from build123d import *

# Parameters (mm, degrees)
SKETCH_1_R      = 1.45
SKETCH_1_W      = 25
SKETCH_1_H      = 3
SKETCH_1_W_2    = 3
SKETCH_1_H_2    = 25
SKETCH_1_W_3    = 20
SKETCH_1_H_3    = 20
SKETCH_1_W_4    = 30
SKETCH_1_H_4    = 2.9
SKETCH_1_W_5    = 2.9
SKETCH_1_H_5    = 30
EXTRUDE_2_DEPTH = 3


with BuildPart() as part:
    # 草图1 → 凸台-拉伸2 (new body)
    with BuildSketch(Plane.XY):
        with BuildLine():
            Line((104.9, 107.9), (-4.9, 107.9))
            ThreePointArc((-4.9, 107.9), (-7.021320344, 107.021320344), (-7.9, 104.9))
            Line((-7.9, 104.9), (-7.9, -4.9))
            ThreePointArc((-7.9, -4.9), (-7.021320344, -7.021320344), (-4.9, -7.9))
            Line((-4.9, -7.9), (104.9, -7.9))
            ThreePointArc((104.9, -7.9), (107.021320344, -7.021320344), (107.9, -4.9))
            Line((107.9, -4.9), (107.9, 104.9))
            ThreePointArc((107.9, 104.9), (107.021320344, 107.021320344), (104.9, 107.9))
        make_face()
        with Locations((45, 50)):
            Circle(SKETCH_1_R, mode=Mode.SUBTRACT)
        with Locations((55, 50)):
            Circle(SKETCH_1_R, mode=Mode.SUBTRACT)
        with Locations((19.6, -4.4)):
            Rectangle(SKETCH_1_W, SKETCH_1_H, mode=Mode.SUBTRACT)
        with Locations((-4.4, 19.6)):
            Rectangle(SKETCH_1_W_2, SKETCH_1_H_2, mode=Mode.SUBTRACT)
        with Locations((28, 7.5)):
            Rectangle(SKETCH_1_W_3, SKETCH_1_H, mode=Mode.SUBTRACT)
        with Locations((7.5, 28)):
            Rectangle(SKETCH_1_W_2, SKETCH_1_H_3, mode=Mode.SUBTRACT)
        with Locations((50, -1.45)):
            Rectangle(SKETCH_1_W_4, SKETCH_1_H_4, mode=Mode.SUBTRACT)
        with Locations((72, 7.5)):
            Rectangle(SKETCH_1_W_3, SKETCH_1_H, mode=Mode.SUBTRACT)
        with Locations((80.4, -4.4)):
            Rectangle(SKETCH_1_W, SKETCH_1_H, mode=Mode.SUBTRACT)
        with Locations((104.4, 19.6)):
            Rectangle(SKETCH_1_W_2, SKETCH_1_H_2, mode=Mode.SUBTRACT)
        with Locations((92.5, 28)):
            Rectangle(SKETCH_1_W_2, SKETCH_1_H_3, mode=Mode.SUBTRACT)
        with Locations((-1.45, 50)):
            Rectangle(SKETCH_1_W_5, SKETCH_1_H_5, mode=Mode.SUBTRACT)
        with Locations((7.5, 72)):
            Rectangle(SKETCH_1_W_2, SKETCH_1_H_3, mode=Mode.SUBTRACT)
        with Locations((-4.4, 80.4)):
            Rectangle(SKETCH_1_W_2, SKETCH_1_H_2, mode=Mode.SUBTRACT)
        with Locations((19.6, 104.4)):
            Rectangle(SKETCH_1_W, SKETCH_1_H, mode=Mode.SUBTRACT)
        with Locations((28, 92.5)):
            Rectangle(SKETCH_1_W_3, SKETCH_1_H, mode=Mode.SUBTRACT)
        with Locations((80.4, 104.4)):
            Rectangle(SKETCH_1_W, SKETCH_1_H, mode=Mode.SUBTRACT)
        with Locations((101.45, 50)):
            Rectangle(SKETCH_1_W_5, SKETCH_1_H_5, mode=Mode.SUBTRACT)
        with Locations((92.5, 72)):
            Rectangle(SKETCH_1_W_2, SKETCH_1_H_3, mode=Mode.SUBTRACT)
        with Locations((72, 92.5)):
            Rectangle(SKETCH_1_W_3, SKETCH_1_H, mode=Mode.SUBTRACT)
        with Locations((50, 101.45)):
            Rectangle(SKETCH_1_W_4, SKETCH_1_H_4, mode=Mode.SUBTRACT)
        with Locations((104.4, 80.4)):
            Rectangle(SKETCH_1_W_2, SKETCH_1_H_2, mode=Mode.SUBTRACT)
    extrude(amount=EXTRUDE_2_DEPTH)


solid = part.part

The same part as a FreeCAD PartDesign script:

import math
import FreeCAD as App
import Part
import Sketcher
Q = App.Units.Quantity


def add_polygon(sketch, points):
    """Adds a closed chain of lines whose ends are joined by coincident constraints."""
    first, n = sketch.GeometryCount, len(points)
    for a, b in zip(points, points[1:] + points[:1]):
        sketch.addGeometry(Part.LineSegment(App.Vector(*a, 0), App.Vector(*b, 0)), False)
    for i in range(n):
        sketch.addConstraint(Sketcher.Constraint("Coincident", first + i, 2, first + (i + 1) % n, 1))

doc = App.newDocument("Part")
body = doc.addObject("PartDesign::Body", "Body")

# Sketch on XY plane
sketch1 = body.newObject("Sketcher::SketchObject", "Sketch")
sketch1.AttachmentSupport = (doc.getObject("XY_Plane"), [""])
sketch1.MapMode = "FlatFace"
sketch1.addGeometry(Part.LineSegment(App.Vector(104.9, 107.9, 0), App.Vector(-4.9, 107.9, 0)), False)  # 0
sketch1.addGeometry(Part.ArcOfCircle(Part.Circle(App.Vector(-4.9, 104.9, 0), App.Vector(0, 0, 1), 3), math.radians(90), math.radians(180)), False)  # 1
sketch1.addGeometry(Part.LineSegment(App.Vector(-7.9, 104.9, 0), App.Vector(-7.9, -4.9, 0)), False)  # 2
sketch1.addGeometry(Part.ArcOfCircle(Part.Circle(App.Vector(-4.9, -4.9, 0), App.Vector(0, 0, 1), 3), math.radians(180), math.radians(270)), False)  # 3
sketch1.addGeometry(Part.LineSegment(App.Vector(-4.9, -7.9, 0), App.Vector(104.9, -7.9, 0)), False)  # 4
sketch1.addGeometry(Part.ArcOfCircle(Part.Circle(App.Vector(104.9, -4.9, 0), App.Vector(0, 0, 1), 3), math.radians(-90), math.radians(0)), False)  # 5
sketch1.addGeometry(Part.LineSegment(App.Vector(107.9, -4.9, 0), App.Vector(107.9, 104.9, 0)), False)  # 6
sketch1.addGeometry(Part.ArcOfCircle(Part.Circle(App.Vector(104.9, 104.9, 0), App.Vector(0, 0, 1), 3), math.radians(0), math.radians(90)), False)  # 7
add_polygon(sketch1, [(32.1, -5.9), (7.1, -5.9), (7.1, -2.9), (32.1, -2.9)])  # lines 8-11
add_polygon(sketch1, [(-2.9, 7.1), (-5.9, 7.1), (-5.9, 32.1), (-2.9, 32.1)])  # lines 12-15
add_polygon(sketch1, [(38, 6), (18, 6), (18, 9), (38, 9)])  # lines 16-19
add_polygon(sketch1, [(65, -2.9), (35, -2.9), (35, 0), (65, 0)])  # lines 20-23
add_polygon(sketch1, [(9, 18), (6, 18), (6, 38), (9, 38)])  # lines 24-27
add_polygon(sketch1, [(0, 35), (-2.9, 35), (-2.9, 65), (0, 65)])  # lines 28-31
sketch1.addGeometry(Part.Circle(App.Vector(45, 50, 0), App.Vector(0, 0, 1), 1.45), False)  # 32
add_polygon(sketch1, [(82, 6), (62, 6), (62, 9), (82, 9)])  # lines 33-36
add_polygon(sketch1, [(92.9, -5.9), (67.9, -5.9), (67.9, -2.9), (92.9, -2.9)])  # lines 37-40
add_polygon(sketch1, [(105.9, 7.1), (102.9, 7.1), (102.9, 32.1), (105.9, 32.1)])  # lines 41-44
sketch1.addGeometry(Part.Circle(App.Vector(55, 50, 0), App.Vector(0, 0, 1), 1.45), False)  # 45
add_polygon(sketch1, [(94, 18), (91, 18), (91, 38), (94, 38)])  # lines 46-49
add_polygon(sketch1, [(102.9, 35), (100, 35), (100, 65), (102.9, 65)])  # lines 50-53
add_polygon(sketch1, [(9, 62), (6, 62), (6, 82), (9, 82)])  # lines 54-57
add_polygon(sketch1, [(-2.9, 67.9), (-5.9, 67.9), (-5.9, 92.9), (-2.9, 92.9)])  # lines 58-61
add_polygon(sketch1, [(32.1, 102.9), (7.1, 102.9), (7.1, 105.9), (32.1, 105.9)])  # lines 62-65
add_polygon(sketch1, [(38, 91), (18, 91), (18, 94), (38, 94)])  # lines 66-69
add_polygon(sketch1, [(65, 100), (35, 100), (35, 102.9), (65, 102.9)])  # lines 70-73
add_polygon(sketch1, [(94, 62), (91, 62), (91, 82), (94, 82)])  # lines 74-77
add_polygon(sketch1, [(82, 91), (62, 91), (62, 94), (82, 94)])  # lines 78-81
add_polygon(sketch1, [(105.9, 67.9), (102.9, 67.9), (102.9, 92.9), (105.9, 92.9)])  # lines 82-85
add_polygon(sketch1, [(92.9, 102.9), (67.9, 102.9), (67.9, 105.9), (92.9, 105.9)])  # lines 86-89
sketch1.addConstraint([
    Sketcher.Constraint("Tangent", 0, 2, 1, 1),
    Sketcher.Constraint("Tangent", 1, 2, 2, 1),
    Sketcher.Constraint("Tangent", 2, 2, 3, 1),
    Sketcher.Constraint("Tangent", 3, 2, 4, 1),
    Sketcher.Constraint("Tangent", 4, 2, 5, 1),
    Sketcher.Constraint("Tangent", 5, 2, 6, 1),
    Sketcher.Constraint("Tangent", 6, 2, 7, 1),
    Sketcher.Constraint("Tangent", 7, 2, 0, 1),
    Sketcher.Constraint("Horizontal", 0),
    Sketcher.Constraint("Vertical", 2),
    Sketcher.Constraint("Horizontal", 4),
    Sketcher.Constraint("Vertical", 6),
    Sketcher.Constraint("Horizontal", 8),
    Sketcher.Constraint("Vertical", 9),
    Sketcher.Constraint("Horizontal", 10),
    Sketcher.Constraint("Vertical", 11),
    Sketcher.Constraint("Horizontal", 12),
    Sketcher.Constraint("Vertical", 13),
    Sketcher.Constraint("Horizontal", 14),
    Sketcher.Constraint("Vertical", 15),
    Sketcher.Constraint("Horizontal", 16),
    Sketcher.Constraint("Vertical", 17),
    Sketcher.Constraint("Horizontal", 18),
    Sketcher.Constraint("Vertical", 19),
    Sketcher.Constraint("Horizontal", 20),
    Sketcher.Constraint("Vertical", 21),
    Sketcher.Constraint("Horizontal", 22),
    Sketcher.Constraint("Vertical", 23),
    Sketcher.Constraint("Horizontal", 24),
    Sketcher.Constraint("Vertical", 25),
    Sketcher.Constraint("Horizontal", 26),
    Sketcher.Constraint("Vertical", 27),
    Sketcher.Constraint("Horizontal", 28),
    Sketcher.Constraint("Vertical", 29),
    Sketcher.Constraint("Horizontal", 30),
    Sketcher.Constraint("Vertical", 31),
    Sketcher.Constraint("Horizontal", 33),
    Sketcher.Constraint("Vertical", 34),
    Sketcher.Constraint("Horizontal", 35),
    Sketcher.Constraint("Vertical", 36),
    Sketcher.Constraint("Horizontal", 37),
    Sketcher.Constraint("Vertical", 38),
    Sketcher.Constraint("Horizontal", 39),
    Sketcher.Constraint("Vertical", 40),
    Sketcher.Constraint("Horizontal", 41),
    Sketcher.Constraint("Vertical", 42),
    Sketcher.Constraint("Horizontal", 43),
    Sketcher.Constraint("Vertical", 44),
    Sketcher.Constraint("Horizontal", 46),
    Sketcher.Constraint("Vertical", 47),
    Sketcher.Constraint("Horizontal", 48),
    Sketcher.Constraint("Vertical", 49),
    Sketcher.Constraint("Horizontal", 50),
    Sketcher.Constraint("Vertical", 51),
    Sketcher.Constraint("Horizontal", 52),
    Sketcher.Constraint("Vertical", 53),
    Sketcher.Constraint("Horizontal", 54),
    Sketcher.Constraint("Vertical", 55),
    Sketcher.Constraint("Horizontal", 56),
    Sketcher.Constraint("Vertical", 57),
    Sketcher.Constraint("Horizontal", 58),
    Sketcher.Constraint("Vertical", 59),
    Sketcher.Constraint("Horizontal", 60),
    Sketcher.Constraint("Vertical", 61),
    Sketcher.Constraint("Horizontal", 62),
    Sketcher.Constraint("Vertical", 63),
    Sketcher.Constraint("Horizontal", 64),
    Sketcher.Constraint("Vertical", 65),
    Sketcher.Constraint("Horizontal", 66),
    Sketcher.Constraint("Vertical", 67),
    Sketcher.Constraint("Horizontal", 68),
    Sketcher.Constraint("Vertical", 69),
    Sketcher.Constraint("Horizontal", 70),
    Sketcher.Constraint("Vertical", 71),
    Sketcher.Constraint("Horizontal", 72),
    Sketcher.Constraint("Vertical", 73),
    Sketcher.Constraint("Horizontal", 74),
    Sketcher.Constraint("Vertical", 75),
    Sketcher.Constraint("Horizontal", 76),
    Sketcher.Constraint("Vertical", 77),
    Sketcher.Constraint("Horizontal", 78),
    Sketcher.Constraint("Vertical", 79),
    Sketcher.Constraint("Horizontal", 80),
    Sketcher.Constraint("Vertical", 81),
    Sketcher.Constraint("Horizontal", 82),
    Sketcher.Constraint("Vertical", 83),
    Sketcher.Constraint("Horizontal", 84),
    Sketcher.Constraint("Vertical", 85),
    Sketcher.Constraint("Horizontal", 86),
    Sketcher.Constraint("Vertical", 87),
    Sketcher.Constraint("Horizontal", 88),
    Sketcher.Constraint("Vertical", 89),
    Sketcher.Constraint("Equal", 1, 3),
    Sketcher.Constraint("Equal", 3, 5),
    Sketcher.Constraint("Equal", 5, 7),
    Sketcher.Constraint("Equal", 32, 45),
    Sketcher.Constraint("PointOnObject", 21, 2, -1),
    Sketcher.Constraint("PointOnObject", 30, 2, -2),
    Sketcher.Constraint("Horizontal", 32, 3, 45, 3),
    Sketcher.Constraint("Horizontal", 10, 2, 20, 2),
    Sketcher.Constraint("Horizontal", 19, 2, 33, 2),
    Sketcher.Constraint("Horizontal", 18, 2, 34, 2),
    Sketcher.Constraint("Horizontal", 11, 2, 37, 2),
    Sketcher.Constraint("Horizontal", 23, 2, 38, 2),
    Sketcher.Constraint("Horizontal", 15, 2, 41, 2),
    Sketcher.Constraint("Horizontal", 14, 2, 42, 2),
    Sketcher.Constraint("Horizontal", 27, 2, 46, 2),
    Sketcher.Constraint("Horizontal", 26, 2, 47, 2),
    Sketcher.Constraint("Horizontal", 31, 2, 50, 2),
    Sketcher.Constraint("Horizontal", 30, 2, 51, 2),
    Sketcher.Constraint("Horizontal", 65, 2, 71, 2),
    Sketcher.Constraint("Horizontal", 57, 2, 74, 2),
    Sketcher.Constraint("Horizontal", 56, 2, 75, 2),
    Sketcher.Constraint("Horizontal", 69, 2, 78, 2),
    Sketcher.Constraint("Horizontal", 68, 2, 79, 2),
    Sketcher.Constraint("Horizontal", 61, 2, 82, 2),
    Sketcher.Constraint("Horizontal", 60, 2, 83, 2),
    Sketcher.Constraint("Horizontal", 72, 2, 86, 2),
    Sketcher.Constraint("Horizontal", 64, 2, 87, 2),
    Sketcher.Constraint("Vertical", 15, 2, 28, 2),
    Sketcher.Constraint("Vertical", 42, 2, 52, 2),
    Sketcher.Constraint("Vertical", 25, 2, 54, 2),
    Sketcher.Constraint("Vertical", 27, 2, 56, 2),
    Sketcher.Constraint("Vertical", 13, 2, 58, 2),
    Sketcher.Constraint("Vertical", 29, 2, 60, 2),
    Sketcher.Constraint("Vertical", 9, 2, 62, 2),
    Sketcher.Constraint("Vertical", 11, 2, 64, 2),
    Sketcher.Constraint("Vertical", 17, 2, 66, 2),
    Sketcher.Constraint("Vertical", 19, 2, 68, 2),
    Sketcher.Constraint("Vertical", 21, 2, 70, 2),
    Sketcher.Constraint("Vertical", 23, 2, 72, 2),
    Sketcher.Constraint("Vertical", 47, 2, 74, 2),
    Sketcher.Constraint("Vertical", 49, 2, 76, 2),
    Sketcher.Constraint("Vertical", 34, 2, 78, 2),
    Sketcher.Constraint("Vertical", 36, 2, 80, 2),
    Sketcher.Constraint("Vertical", 53, 2, 82, 2),
    Sketcher.Constraint("Vertical", 44, 2, 84, 2),
    Sketcher.Constraint("Vertical", 38, 2, 86, 2),
    Sketcher.Constraint("Vertical", 40, 2, 88, 2),
    Sketcher.Constraint("Equal", 14, 24),
    Sketcher.Constraint("Equal", 18, 33),
    Sketcher.Constraint("Equal", 10, 37),
    Sketcher.Constraint("Equal", 26, 41),
    Sketcher.Constraint("Equal", 43, 46),
    Sketcher.Constraint("Equal", 30, 50),
    Sketcher.Constraint("Equal", 4, 2),
    Sketcher.Constraint("Equal", 84, 9),
    Sketcher.Constraint("Equal", 88, 13),
    Sketcher.Constraint("Equal", 11, 17),
    Sketcher.Constraint("Equal", 52, 21),
    Sketcher.Constraint("Equal", 80, 25),
    Sketcher.Constraint("Equal", 72, 29),
    Sketcher.Constraint("Equal", 49, 55),
    Sketcher.Constraint("Equal", 44, 59),
    Sketcher.Constraint("Equal", 40, 63),
    Sketcher.Constraint("Equal", 65, 67),
    Sketcher.Constraint("Equal", 23, 71),
    Sketcher.Constraint("Radius", 1, Q("3 mm")),
    Sketcher.Constraint("Diameter", 32, Q("2.9 mm")),
    Sketcher.Constraint("DistanceX", 8, 2, 8, 1, Q("25 mm")),
    Sketcher.Constraint("DistanceX", 12, 2, 12, 1, Q("3 mm")),
    Sketcher.Constraint("DistanceX", 16, 2, 16, 1, Q("20 mm")),
    Sketcher.Constraint("DistanceX", 20, 2, 20, 1, Q("30 mm")),
    Sketcher.Constraint("DistanceX", 0, 2, 0, 1, Q("109.8 mm")),
    Sketcher.Constraint("DistanceX", 28, 2, 28, 1, Q("2.9 mm")),
    Sketcher.Constraint("DistanceX", -1, 1, 32, 3, Q("45 mm")),
    Sketcher.Constraint("DistanceY", -1, 1, 32, 3, Q("50 mm")),
    Sketcher.Constraint("DistanceX", -1, 1, 45, 3, Q("55 mm")),
    Sketcher.Constraint("DistanceX", -1, 1, 16, 2, Q("18 mm")),
    Sketcher.Constraint("DistanceY", -1, 1, 16, 2, Q("6 mm")),
    Sketcher.Constraint("DistanceX", -1, 1, 20, 2, Q("35 mm")),
    Sketcher.Constraint("DistanceX", -1, 1, 24, 2, Q("6 mm")),
    Sketcher.Constraint("DistanceY", -1, 1, 24, 2, Q("18 mm")),
    Sketcher.Constraint("DistanceY", -1, 1, 28, 2, Q("35 mm")),
    Sketcher.Constraint("DistanceX", -1, 1, 33, 2, Q("62 mm")),
    Sketcher.Constraint("DistanceX", -1, 1, 46, 2, Q("91 mm")),
    Sketcher.Constraint("DistanceX", -1, 1, 50, 2, Q("100 mm")),
    Sketcher.Constraint("DistanceY", -1, 1, 54, 2, Q("62 mm")),
    Sketcher.Constraint("DistanceY", -1, 1, 66, 2, Q("91 mm")),
    Sketcher.Constraint("DistanceY", -1, 1, 70, 2, Q("100 mm")),
    Sketcher.Constraint("DistanceX", 1, 3, -1, 1, Q("4.9 mm")),
    Sketcher.Constraint("DistanceY", -1, 1, 1, 3, Q("104.9 mm")),
    Sketcher.Constraint("DistanceX", -1, 1, 8, 2, Q("7.1 mm")),
    Sketcher.Constraint("DistanceY", -1, 1, 12, 2, Q("7.1 mm")),
    Sketcher.Constraint("DistanceX", -1, 1, 37, 2, Q("67.9 mm")),
    Sketcher.Constraint("DistanceY", -1, 1, 58, 2, Q("67.9 mm")),
])
pad1 = body.newObject("PartDesign::Pad", "Pad")
pad1.Profile = sketch1
pad1.Length = 3

doc.recompute()
